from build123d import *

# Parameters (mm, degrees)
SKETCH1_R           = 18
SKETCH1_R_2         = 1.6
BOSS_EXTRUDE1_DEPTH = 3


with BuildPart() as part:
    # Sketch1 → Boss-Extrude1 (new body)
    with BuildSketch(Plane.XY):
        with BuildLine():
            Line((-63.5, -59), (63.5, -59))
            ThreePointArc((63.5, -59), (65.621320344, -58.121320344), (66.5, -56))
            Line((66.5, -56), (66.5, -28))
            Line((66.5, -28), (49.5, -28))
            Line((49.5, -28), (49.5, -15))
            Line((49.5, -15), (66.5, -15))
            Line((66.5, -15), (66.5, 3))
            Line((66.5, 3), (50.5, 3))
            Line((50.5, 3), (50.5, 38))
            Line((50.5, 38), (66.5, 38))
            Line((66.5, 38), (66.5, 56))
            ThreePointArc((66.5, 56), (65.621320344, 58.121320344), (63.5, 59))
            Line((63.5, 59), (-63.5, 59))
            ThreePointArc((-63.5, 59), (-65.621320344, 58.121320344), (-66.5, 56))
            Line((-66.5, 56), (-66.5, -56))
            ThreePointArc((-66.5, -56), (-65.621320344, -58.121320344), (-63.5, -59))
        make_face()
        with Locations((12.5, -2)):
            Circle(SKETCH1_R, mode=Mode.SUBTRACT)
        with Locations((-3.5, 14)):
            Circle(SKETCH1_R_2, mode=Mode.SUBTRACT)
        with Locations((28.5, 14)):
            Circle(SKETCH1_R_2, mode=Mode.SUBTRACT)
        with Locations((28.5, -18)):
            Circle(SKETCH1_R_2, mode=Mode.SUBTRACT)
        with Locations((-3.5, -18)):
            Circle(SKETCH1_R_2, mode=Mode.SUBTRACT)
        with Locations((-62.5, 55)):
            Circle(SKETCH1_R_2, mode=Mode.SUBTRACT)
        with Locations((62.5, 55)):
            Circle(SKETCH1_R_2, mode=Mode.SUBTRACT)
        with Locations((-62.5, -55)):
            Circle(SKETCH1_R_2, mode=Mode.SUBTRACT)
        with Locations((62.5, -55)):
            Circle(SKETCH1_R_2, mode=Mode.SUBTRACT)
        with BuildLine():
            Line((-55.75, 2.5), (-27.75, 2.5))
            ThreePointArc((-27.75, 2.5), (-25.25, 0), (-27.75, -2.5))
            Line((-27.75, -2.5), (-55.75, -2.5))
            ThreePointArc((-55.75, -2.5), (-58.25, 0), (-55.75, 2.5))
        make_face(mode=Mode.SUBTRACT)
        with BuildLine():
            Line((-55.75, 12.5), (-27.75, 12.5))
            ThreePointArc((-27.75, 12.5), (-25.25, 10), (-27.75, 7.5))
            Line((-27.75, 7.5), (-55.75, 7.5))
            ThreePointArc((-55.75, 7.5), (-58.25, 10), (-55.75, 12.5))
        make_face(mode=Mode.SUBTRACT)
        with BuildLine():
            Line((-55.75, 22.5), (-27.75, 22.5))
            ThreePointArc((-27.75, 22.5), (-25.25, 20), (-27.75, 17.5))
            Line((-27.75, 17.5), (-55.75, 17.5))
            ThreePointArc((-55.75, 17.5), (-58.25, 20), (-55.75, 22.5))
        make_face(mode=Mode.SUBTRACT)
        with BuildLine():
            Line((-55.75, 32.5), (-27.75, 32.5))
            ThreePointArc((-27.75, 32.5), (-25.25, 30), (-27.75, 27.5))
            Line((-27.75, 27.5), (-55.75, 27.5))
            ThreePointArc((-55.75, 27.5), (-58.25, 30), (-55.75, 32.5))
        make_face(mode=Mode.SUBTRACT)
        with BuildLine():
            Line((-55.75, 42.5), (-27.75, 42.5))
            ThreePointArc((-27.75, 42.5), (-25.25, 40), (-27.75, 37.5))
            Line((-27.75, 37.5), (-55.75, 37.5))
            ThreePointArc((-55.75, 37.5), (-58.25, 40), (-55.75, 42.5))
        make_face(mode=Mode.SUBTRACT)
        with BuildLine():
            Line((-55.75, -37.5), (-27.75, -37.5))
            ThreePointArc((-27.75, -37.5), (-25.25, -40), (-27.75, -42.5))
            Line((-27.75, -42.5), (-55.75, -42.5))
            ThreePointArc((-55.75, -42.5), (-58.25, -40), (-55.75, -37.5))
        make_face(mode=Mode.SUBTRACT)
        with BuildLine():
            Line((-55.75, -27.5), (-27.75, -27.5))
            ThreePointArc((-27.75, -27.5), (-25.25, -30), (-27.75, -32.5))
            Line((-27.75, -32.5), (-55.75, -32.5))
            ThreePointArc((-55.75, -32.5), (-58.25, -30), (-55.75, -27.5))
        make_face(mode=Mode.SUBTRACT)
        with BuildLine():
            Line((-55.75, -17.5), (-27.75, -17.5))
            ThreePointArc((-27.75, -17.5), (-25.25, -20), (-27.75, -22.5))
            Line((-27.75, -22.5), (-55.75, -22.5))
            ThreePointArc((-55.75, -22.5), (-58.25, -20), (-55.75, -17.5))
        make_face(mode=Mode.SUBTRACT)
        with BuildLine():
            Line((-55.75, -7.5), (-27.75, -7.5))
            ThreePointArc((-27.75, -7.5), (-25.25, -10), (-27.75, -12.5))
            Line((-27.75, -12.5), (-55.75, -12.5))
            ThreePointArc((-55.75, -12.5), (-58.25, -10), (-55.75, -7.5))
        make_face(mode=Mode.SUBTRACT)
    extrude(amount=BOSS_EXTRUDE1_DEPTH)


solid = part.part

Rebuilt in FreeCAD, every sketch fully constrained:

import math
import FreeCAD as App
import Part
import Sketcher

V = App.Vector
Q = App.Units.Quantity

doc = App.newDocument("Part")
params = doc.addObject("Spreadsheet::Sheet", "Params")
for row, (alias, value) in enumerate([
    ("sketch1_diameter", "36 mm"),
    ("sketch1_radius", "3 mm"),
    ("sketch1_diameter2", "3.2 mm"),
    ("sketch1_radius2", "2.5 mm"),
    ("sketch1_width", "127 mm"),
    ("pad1_length", "3 mm"),
], start=1):
    params.set(f"A{row}", alias)
    params.set(f"B{row}", "=" + value)
    params.setAlias(f"B{row}", alias)

body = doc.addObject("PartDesign::Body", "Body")

sketch1 = doc.addObject("Sketcher::SketchObject", "Sketch")
body.addObject(sketch1)
sketch1.AttachmentSupport = (doc.XY_Plane, [""])
sketch1.MapMode = "FlatFace"
sketch1.addGeometry(Part.LineSegment(V(-63.5, -59, 0), V(63.5, -59, 0)), False)
sketch1.addGeometry(Part.ArcOfCircle(Part.Circle(V(63.5, -56, 0), V(0, 0, 1), 3), math.radians(-90), math.radians(0)), False)
sketch1.addGeometry(Part.LineSegment(V(66.5, -56, 0), V(66.5, -28, 0)), False)
sketch1.addGeometry(Part.LineSegment(V(66.5, -28, 0), V(49.5, -28, 0)), False)
sketch1.addGeometry(Part.LineSegment(V(49.5, -28, 0), V(49.5, -15, 0)), False)
sketch1.addGeometry(Part.LineSegment(V(49.5, -15, 0), V(66.5, -15, 0)), False)
sketch1.addGeometry(Part.LineSegment(V(66.5, -15, 0), V(66.5, 3, 0)), False)
sketch1.addGeometry(Part.LineSegment(V(66.5, 3, 0), V(50.5, 3, 0)), False)
sketch1.addGeometry(Part.LineSegment(V(50.5, 3, 0), V(50.5, 38, 0)), False)
sketch1.addGeometry(Part.LineSegment(V(50.5, 38, 0), V(66.5, 38, 0)), False)
sketch1.addGeometry(Part.LineSegment(V(66.5, 38, 0), V(66.5, 56, 0)), False)
sketch1.addGeometry(Part.ArcOfCircle(Part.Circle(V(63.5, 56, 0), V(0, 0, 1), 3), math.radians(0), math.radians(90)), False)
sketch1.addGeometry(Part.LineSegment(V(63.5, 59, 0), V(-63.5, 59, 0)), False)
sketch1.addGeometry(Part.ArcOfCircle(Part.Circle(V(-63.5, 56, 0), V(0, 0, 1), 3), math.radians(90), math.radians(180)), False)
sketch1.addGeometry(Part.LineSegment(V(-66.5, 56, 0), V(-66.5, -56, 0)), False)
sketch1.addGeometry(Part.ArcOfCircle(Part.Circle(V(-63.5, -56, 0), V(0, 0, 1), 3), math.radians(180), math.radians(270)), False)
sketch1.addGeometry(Part.Circle(V(-62.5, -55, 0), V(0, 0, 1), 1.6), False)
sketch1.addGeometry(Part.ArcOfCircle(Part.Circle(V(-55.8, -40, 0), V(0, 0, 1), 2.5), math.radians(90), math.radians(270)), False)
sketch1.addGeometry(Part.LineSegment(V(-55.8, -37.5, 0), V(-27.8, -37.5, 0)), False)
sketch1.addGeometry(Part.ArcOfCircle(Part.Circle(V(-27.8, -40, 0), V(0, 0, 1), 2.5), math.radians(-90), math.radians(90)), False)
sketch1.addGeometry(Part.LineSegment(V(-27.8, -42.5, 0), V(-55.8, -42.5, 0)), False)
sketch1.addGeometry(Part.ArcOfCircle(Part.Circle(V(-55.8, -30, 0), V(0, 0, 1), 2.5), math.radians(90), math.radians(270)), False)
sketch1.addGeometry(Part.LineSegment(V(-55.8, -27.5, 0), V(-27.8, -27.5, 0)), False)
sketch1.addGeometry(Part.ArcOfCircle(Part.Circle(V(-27.8, -30, 0), V(0, 0, 1), 2.5), math.radians(-90), math.radians(90)), False)
sketch1.addGeometry(Part.LineSegment(V(-27.8, -32.5, 0), V(-55.8, -32.5, 0)), False)
sketch1.addGeometry(Part.ArcOfCircle(Part.Circle(V(-55.8, -20, 0), V(0, 0, 1), 2.5), math.radians(90), math.radians(270)), False)
sketch1.addGeometry(Part.LineSegment(V(-55.8, -17.5, 0), V(-27.8, -17.5, 0)), False)
sketch1.addGeometry(Part.ArcOfCircle(Part.Circle(V(-27.8, -20, 0), V(0, 0, 1), 2.5), math.radians(-90), math.radians(90)), False)
sketch1.addGeometry(Part.LineSegment(V(-27.8, -22.5, 0), V(-55.8, -22.5, 0)), False)
sketch1.addGeometry(Part.ArcOfCircle(Part.Circle(V(-55.8, -10, 0), V(0, 0, 1), 2.5), math.radians(90), math.radians(270)), False)
sketch1.addGeometry(Part.LineSegment(V(-55.8, -7.5, 0), V(-27.8, -7.5, 0)), False)
sketch1.addGeometry(Part.ArcOfCircle(Part.Circle(V(-27.8, -10, 0), V(0, 0, 1), 2.5), math.radians(-90), math.radians(90)), False)
sketch1.addGeometry(Part.LineSegment(V(-27.8, -12.5, 0), V(-55.8, -12.5, 0)), False)
sketch1.addGeometry(Part.Circle(V(-3.5, -18, 0), V(0, 0, 1), 1.6), False)
sketch1.addGeometry(Part.Circle(V(62.5, -55, 0), V(0, 0, 1), 1.6), False)
sketch1.addGeometry(Part.Circle(V(28.5, -18, 0), V(0, 0, 1), 1.6), False)
sketch1.addGeometry(Part.Circle(V(12.5, -2, 0), V(0, 0, 1), 18), False)
sketch1.addGeometry(Part.ArcOfCircle(Part.Circle(V(-55.8, 0, 0), V(0, 0, 1), 2.5), math.radians(90), math.radians(270)), False)
sketch1.addGeometry(Part.LineSegment(V(-55.8, 2.5, 0), V(-27.8, 2.5, 0)), False)
sketch1.addGeometry(Part.ArcOfCircle(Part.Circle(V(-27.8, 0, 0), V(0, 0, 1), 2.5), math.radians(-90), math.radians(90)), False)
sketch1.addGeometry(Part.LineSegment(V(-27.8, -2.5, 0), V(-55.8, -2.5, 0)), False)
sketch1.addGeometry(Part.ArcOfCircle(Part.Circle(V(-55.8, 10, 0), V(0, 0, 1), 2.5), math.radians(90), math.radians(270)), False)
sketch1.addGeometry(Part.LineSegment(V(-55.8, 12.5, 0), V(-27.8, 12.5, 0)), False)
sketch1.addGeometry(Part.ArcOfCircle(Part.Circle(V(-27.8, 10, 0), V(0, 0, 1), 2.5), math.radians(-90), math.radians(90)), False)
sketch1.addGeometry(Part.LineSegment(V(-27.8, 7.5, 0), V(-55.8, 7.5, 0)), False)
sketch1.addGeometry(Part.ArcOfCircle(Part.Circle(V(-55.8, 20, 0), V(0, 0, 1), 2.5), math.radians(90), math.radians(270)), False)
sketch1.addGeometry(Part.LineSegment(V(-55.8, 22.5, 0), V(-27.8, 22.5, 0)), False)
sketch1.addGeometry(Part.ArcOfCircle(Part.Circle(V(-27.8, 20, 0), V(0, 0, 1), 2.5), math.radians(-90), math.radians(90)), False)
sketch1.addGeometry(Part.LineSegment(V(-27.8, 17.5, 0), V(-55.8, 17.5, 0)), False)
sketch1.addGeometry(Part.Circle(V(-3.5, 14, 0), V(0, 0, 1), 1.6), False)
sketch1.addGeometry(Part.ArcOfCircle(Part.Circle(V(-55.8, 30, 0), V(0, 0, 1), 2.5), math.radians(90), math.radians(270)), False)
sketch1.addGeometry(Part.LineSegment(V(-55.8, 32.5, 0), V(-27.8, 32.5, 0)), False)
sketch1.addGeometry(Part.ArcOfCircle(Part.Circle(V(-27.8, 30, 0), V(0, 0, 1), 2.5), math.radians(-90), math.radians(90)), False)
sketch1.addGeometry(Part.LineSegment(V(-27.8, 27.5, 0), V(-55.8, 27.5, 0)), False)
sketch1.addGeometry(Part.ArcOfCircle(Part.Circle(V(-55.8, 40, 0), V(0, 0, 1), 2.5), math.radians(90), math.radians(270)), False)
sketch1.addGeometry(Part.LineSegment(V(-55.8, 42.5, 0), V(-27.8, 42.5, 0)), False)
sketch1.addGeometry(Part.ArcOfCircle(Part.Circle(V(-27.8, 40, 0), V(0, 0, 1), 2.5), math.radians(-90), math.radians(90)), False)
sketch1.addGeometry(Part.LineSegment(V(-27.8, 37.5, 0), V(-55.8, 37.5, 0)), False)
sketch1.addGeometry(Part.Circle(V(-62.5, 55, 0), V(0, 0, 1), 1.6), False)
sketch1.addGeometry(Part.Circle(V(28.5, 14, 0), V(0, 0, 1), 1.6), False)
sketch1.addGeometry(Part.Circle(V(62.5, 55, 0), V(0, 0, 1), 1.6), False)
sketch1.addConstraint(Sketcher.Constraint("Tangent", 0, 2, 1, 1))
sketch1.addConstraint(Sketcher.Constraint("Tangent", 1, 2, 2, 1))
sketch1.addConstraint(Sketcher.Constraint("Coincident", 2, 2, 3, 1))
sketch1.addConstraint(Sketcher.Constraint("Coincident", 3, 2, 4, 1))
sketch1.addConstraint(Sketcher.Constraint("Coincident", 4, 2, 5, 1))
sketch1.addConstraint(Sketcher.Constraint("Coincident", 5, 2, 6, 1))
sketch1.addConstraint(Sketcher.Constraint("Coincident", 6, 2, 7, 1))
sketch1.addConstraint(Sketcher.Constraint("Coincident", 7, 2, 8, 1))
sketch1.addConstraint(Sketcher.Constraint("Coincident", 8, 2, 9, 1))
sketch1.addConstraint(Sketcher.Constraint("Coincident", 9, 2, 10, 1))
sketch1.addConstraint(Sketcher.Constraint("Tangent", 10, 2, 11, 1))
sketch1.addConstraint(Sketcher.Constraint("Tangent", 11, 2, 12, 1))
sketch1.addConstraint(Sketcher.Constraint("Tangent", 12, 2, 13, 1))
sketch1.addConstraint(Sketcher.Constraint("Tangent", 13, 2, 14, 1))
sketch1.addConstraint(Sketcher.Constraint("Tangent", 14, 2, 15, 1))
sketch1.addConstraint(Sketcher.Constraint("Tangent", 15, 2, 0, 1))
sketch1.addConstraint(Sketcher.Constraint("Tangent", 17, 1, 18, 1))
sketch1.addConstraint(Sketcher.Constraint("Tangent", 18, 2, 19, 2))
sketch1.addConstraint(Sketcher.Constraint("Tangent", 19, 1, 20, 1))
sketch1.addConstraint(Sketcher.Constraint("Tangent", 20, 2, 17, 2))
sketch1.addConstraint(Sketcher.Constraint("Tangent", 21, 1, 22, 1))
sketch1.addConstraint(Sketcher.Constraint("Tangent", 22, 2, 23, 2))
sketch1.addConstraint(Sketcher.Constraint("Tangent", 23, 1, 24, 1))
sketch1.addConstraint(Sketcher.Constraint("Tangent", 24, 2, 21, 2))
sketch1.addConstraint(Sketcher.Constraint("Tangent", 25, 1, 26, 1))
sketch1.addConstraint(Sketcher.Constraint("Tangent", 26, 2, 27, 2))
sketch1.addConstraint(Sketcher.Constraint("Tangent", 27, 1, 28, 1))
sketch1.addConstraint(Sketcher.Constraint("Tangent", 28, 2, 25, 2))
sketch1.addConstraint(Sketcher.Constraint("Tangent", 29, 1, 30, 1))
sketch1.addConstraint(Sketcher.Constraint("Tangent", 30, 2, 31, 2))
sketch1.addConstraint(Sketcher.Constraint("Tangent", 31, 1, 32, 1))
sketch1.addConstraint(Sketcher.Constraint("Tangent", 32, 2, 29, 2))
sketch1.addConstraint(Sketcher.Constraint("Tangent", 37, 1, 38, 1))
sketch1.addConstraint(Sketcher.Constraint("Tangent", 38, 2, 39, 2))
sketch1.addConstraint(Sketcher.Constraint("Tangent", 39, 1, 40, 1))
sketch1.addConstraint(Sketcher.Constraint("Tangent", 40, 2, 37, 2))
sketch1.addConstraint(Sketcher.Constraint("Tangent", 41, 1, 42, 1))
sketch1.addConstraint(Sketcher.Constraint("Tangent", 42, 2, 43, 2))
sketch1.addConstraint(Sketcher.Constraint("Tangent", 43, 1, 44, 1))
sketch1.addConstraint(Sketcher.Constraint("Tangent", 44, 2, 41, 2))
sketch1.addConstraint(Sketcher.Constraint("Tangent", 45, 1, 46, 1))
sketch1.addConstraint(Sketcher.Constraint("Tangent", 46, 2, 47, 2))
sketch1.addConstraint(Sketcher.Constraint("Tangent", 47, 1, 48, 1))
sketch1.addConstraint(Sketcher.Constraint("Tangent", 48, 2, 45, 2))
sketch1.addConstraint(Sketcher.Constraint("Tangent", 50, 1, 51, 1))
sketch1.addConstraint(Sketcher.Constraint("Tangent", 51, 2, 52, 2))
sketch1.addConstraint(Sketcher.Constraint("Tangent", 52, 1, 53, 1))
sketch1.addConstraint(Sketcher.Constraint("Tangent", 53, 2, 50, 2))
sketch1.addConstraint(Sketcher.Constraint("Tangent", 54, 1, 55, 1))
sketch1.addConstraint(Sketcher.Constraint("Tangent", 55, 2, 56, 2))
sketch1.addConstraint(Sketcher.Constraint("Tangent", 56, 1, 57, 1))
sketch1.addConstraint(Sketcher.Constraint("Tangent", 57, 2, 54, 2))
sketch1.addConstraint(Sketcher.Constraint("Horizontal", 0))
sketch1.addConstraint(Sketcher.Constraint("Vertical", 2))
sketch1.addConstraint(Sketcher.Constraint("Horizontal", 3))
sketch1.addConstraint(Sketcher.Constraint("Vertical", 4))
sketch1.addConstraint(Sketcher.Constraint("Horizontal", 5))
sketch1.addConstraint(Sketcher.Constraint("Vertical", 6))
sketch1.addConstraint(Sketcher.Constraint("Horizontal", 7))
sketch1.addConstraint(Sketcher.Constraint("Vertical", 8))
sketch1.addConstraint(Sketcher.Constraint("Horizontal", 9))
sketch1.addConstraint(Sketcher.Constraint("Vertical", 10))
sketch1.addConstraint(Sketcher.Constraint("Horizontal", 12))
sketch1.addConstraint(Sketcher.Constraint("Vertical", 14))
sketch1.addConstraint(Sketcher.Constraint("Horizontal", 18))
sketch1.addConstraint(Sketcher.Constraint("Horizontal", 20))
sketch1.addConstraint(Sketcher.Constraint("Horizontal", 22))
sketch1.addConstraint(Sketcher.Constraint("Horizontal", 24))
sketch1.addConstraint(Sketcher.Constraint("Horizontal", 26))
sketch1.addConstraint(Sketcher.Constraint("Horizontal", 28))
sketch1.addConstraint(Sketcher.Constraint("Horizontal", 30))
sketch1.addConstraint(Sketcher.Constraint("Horizontal", 32))
sketch1.addConstraint(Sketcher.Constraint("Horizontal", 38))
sketch1.addConstraint(Sketcher.Constraint("Horizontal", 40))
sketch1.addConstraint(Sketcher.Constraint("Horizontal", 42))
sketch1.addConstraint(Sketcher.Constraint("Horizontal", 44))
sketch1.addConstraint(Sketcher.Constraint("Horizontal", 46))
sketch1.addConstraint(Sketcher.Constraint("Horizontal", 48))
sketch1.addConstraint(Sketcher.Constraint("Horizontal", 51))
sketch1.addConstraint(Sketcher.Constraint("Horizontal", 53))
sketch1.addConstraint(Sketcher.Constraint("Horizontal", 55))
sketch1.addConstraint(Sketcher.Constraint("Horizontal", 57))
sketch1.addConstraint(Sketcher.Constraint("Equal", 1, 11))
sketch1.addConstraint(Sketcher.Constraint("Equal", 11, 13))
sketch1.addConstraint(Sketcher.Constraint("Equal", 13, 15))
sketch1.addConstraint(Sketcher.Constraint("Equal", 19, 21))
sketch1.addConstraint(Sketcher.Constraint("Equal", 23, 25))
sketch1.addConstraint(Sketcher.Constraint("Equal", 27, 29))
sketch1.addConstraint(Sketcher.Constraint("Equal", 16, 33))
sketch1.addConstraint(Sketcher.Constraint("Equal", 33, 34))
sketch1.addConstraint(Sketcher.Constraint("Equal", 34, 35))
sketch1.addConstraint(Sketcher.Constraint("Equal", 31, 37))
sketch1.addConstraint(Sketcher.Constraint("Equal", 39, 41))
sketch1.addConstraint(Sketcher.Constraint("Equal", 43, 45))
sketch1.addConstraint(Sketcher.Constraint("Equal", 35, 49))
sketch1.addConstraint(Sketcher.Constraint("Equal", 47, 50))
sketch1.addConstraint(Sketcher.Constraint("Equal", 52, 54))
sketch1.addConstraint(Sketcher.Constraint("Equal", 49, 58))
sketch1.addConstraint(Sketcher.Constraint("Equal", 58, 59))
sketch1.addConstraint(Sketcher.Constraint("Equal", 59, 60))
sketch1.addConstraint(Sketcher.Constraint("Symmetric", 1, 3, 13, 3, -1, 1))
sketch1.addConstraint(Sketcher.Constraint("Symmetric", 34, 3, 58, 3, -1, 1))
sketch1.addConstraint(Sketcher.Constraint("Symmetric", 16, 3, 60, 3, -1, 1))
sketch1.addConstraint(Sketcher.Constraint("Symmetric", 16, 3, 34, 3, -2))
sketch1.addConstraint(Sketcher.Constraint("Symmetric", 29, 3, 41, 3, -1))
sketch1.addConstraint(Sketcher.Constraint("Symmetric", 25, 3, 45, 3, -1))
sketch1.addConstraint(Sketcher.Constraint("Symmetric", 21, 3, 50, 3, -1))
sketch1.addConstraint(Sketcher.Constraint("Symmetric", 17, 3, 54, 3, -1))
sketch1.addConstraint(Sketcher.Constraint("PointOnObject", 37, 3, -1))
sketch1.addConstraint(Sketcher.Constraint("Horizontal", 33, 3, 35, 3))
sketch1.addConstraint(Sketcher.Constraint("Horizontal", 49, 3, 59, 3))
sketch1.addConstraint(Sketcher.Constraint("Vertical", 1, 3, 11, 3))
sketch1.addConstraint(Sketcher.Constraint("Vertical", 17, 3, 21, 3))
sketch1.addConstraint(Sketcher.Constraint("Vertical", 19, 3, 23, 3))
sketch1.addConstraint(Sketcher.Constraint("Vertical", 21, 3, 25, 3))
sketch1.addConstraint(Sketcher.Constraint("Vertical", 23, 3, 27, 3))
sketch1.addConstraint(Sketcher.Constraint("Vertical", 25, 3, 29, 3))
sketch1.addConstraint(Sketcher.Constraint("Vertical", 27, 3, 31, 3))
sketch1.addConstraint(Sketcher.Constraint("Vertical", 29, 3, 37, 3))
sketch1.addConstraint(Sketcher.Constraint("Vertical", 31, 3, 39, 3))
sketch1.addConstraint(Sketcher.Constraint("Vertical", 39, 3, 43, 3))
sketch1.addConstraint(Sketcher.Constraint("Vertical", 43, 3, 47, 3))
sketch1.addConstraint(Sketcher.Constraint("Vertical", 33, 3, 49, 3))
sketch1.addConstraint(Sketcher.Constraint("Vertical", 47, 3, 52, 3))
sketch1.addConstraint(Sketcher.Constraint("Vertical", 52, 3, 56, 3))
sketch1.addConstraint(Sketcher.Constraint("Vertical", 35, 3, 59, 3))
sketch1.addConstraint(Sketcher.Constraint("Vertical", 2, 2, 5, 2))
sketch1.addConstraint(Sketcher.Constraint("Equal", 57, 2))
sketch1.addConstraint(Sketcher.Constraint("Equal", 6, 10))
sketch1.addConstraint(Sketcher.Constraint("Diameter", 36, Q("36 mm")))
sketch1.addConstraint(Sketcher.Constraint("Radius", 1, Q("3 mm")))
sketch1.addConstraint(Sketcher.Constraint("Diameter", 16, Q("3.2 mm")))
sketch1.addConstraint(Sketcher.Constraint("Radius", 17, Q("2.5 mm")))
sketch1.addConstraint(Sketcher.Constraint("DistanceX", 0, 1, 0, 2, Q("127 mm")))
sketch1.addConstraint(Sketcher.Constraint("DistanceX", 3, 2, 3, 1, Q("17 mm")))
sketch1.addConstraint(Sketcher.Constraint("DistanceX", 7, 2, 7, 1, Q("16 mm")))
sketch1.addConstraint(Sketcher.Constraint("DistanceX", 18, 1, 18, 2, Q("28 mm")))
sketch1.addConstraint(Sketcher.Constraint("DistanceY", 4, 1, 4, 2, Q("13 mm")))
sketch1.addConstraint(Sketcher.Constraint("DistanceY", 6, 1, 6, 2, Q("18 mm")))
sketch1.addConstraint(Sketcher.Constraint("DistanceY", 8, 1, 8, 2, Q("35 mm")))
sketch1.addConstraint(Sketcher.Constraint("DistanceY", 16, 3, -1, 1, Q("55 mm")))
sketch1.addConstraint(Sketcher.Constraint("DistanceY", 17, 3, -1, 1, Q("40 mm")))
sketch1.addConstraint(Sketcher.Constraint("DistanceY", 21, 3, -1, 1, Q("30 mm")))
sketch1.addConstraint(Sketcher.Constraint("DistanceY", 25, 3, -1, 1, Q("20 mm")))
sketch1.addConstraint(Sketcher.Constraint("DistanceY", 29, 3, -1, 1, Q("10 mm")))
sketch1.addConstraint(Sketcher.Constraint("DistanceY", 33, 3, -1, 1, Q("18 mm")))
sketch1.addConstraint(Sketcher.Constraint("DistanceY", 36, 3, -1, 1, Q("2 mm")))
sketch1.addConstraint(Sketcher.Constraint("DistanceY", -1, 1, 49, 3, Q("14 mm")))
sketch1.addConstraint(Sketcher.Constraint("DistanceX", 16, 3, -1, 1, Q("62.5 mm")))
sketch1.addConstraint(Sketcher.Constraint("DistanceX", 33, 3, -1, 1, Q("3.5 mm")))
sketch1.addConstraint(Sketcher.Constraint("DistanceX", -1, 1, 35, 3, Q("28.5 mm")))
sketch1.addConstraint(Sketcher.Constraint("DistanceX", -1, 1, 36, 3, Q("12.5 mm")))
sketch1.addConstraint(Sketcher.Constraint("DistanceX", 17, 3, -1, 1, Q("55.75 mm")))
sketch1.setExpression("Constraints[129]", "Params.sketch1_diameter")
sketch1.setExpression("Constraints[130]", "Params.sketch1_radius")
sketch1.setExpression("Constraints[131]", "Params.sketch1_diameter2")
sketch1.setExpression("Constraints[132]", "Params.sketch1_radius2")
sketch1.setExpression("Constraints[133]", "Params.sketch1_width")
pad1 = doc.addObject("PartDesign::Pad", "Pad")
body.addObject(pad1)
pad1.Profile = sketch1
pad1.setExpression("Length", "Params.pad1_length")

doc.recompute()
